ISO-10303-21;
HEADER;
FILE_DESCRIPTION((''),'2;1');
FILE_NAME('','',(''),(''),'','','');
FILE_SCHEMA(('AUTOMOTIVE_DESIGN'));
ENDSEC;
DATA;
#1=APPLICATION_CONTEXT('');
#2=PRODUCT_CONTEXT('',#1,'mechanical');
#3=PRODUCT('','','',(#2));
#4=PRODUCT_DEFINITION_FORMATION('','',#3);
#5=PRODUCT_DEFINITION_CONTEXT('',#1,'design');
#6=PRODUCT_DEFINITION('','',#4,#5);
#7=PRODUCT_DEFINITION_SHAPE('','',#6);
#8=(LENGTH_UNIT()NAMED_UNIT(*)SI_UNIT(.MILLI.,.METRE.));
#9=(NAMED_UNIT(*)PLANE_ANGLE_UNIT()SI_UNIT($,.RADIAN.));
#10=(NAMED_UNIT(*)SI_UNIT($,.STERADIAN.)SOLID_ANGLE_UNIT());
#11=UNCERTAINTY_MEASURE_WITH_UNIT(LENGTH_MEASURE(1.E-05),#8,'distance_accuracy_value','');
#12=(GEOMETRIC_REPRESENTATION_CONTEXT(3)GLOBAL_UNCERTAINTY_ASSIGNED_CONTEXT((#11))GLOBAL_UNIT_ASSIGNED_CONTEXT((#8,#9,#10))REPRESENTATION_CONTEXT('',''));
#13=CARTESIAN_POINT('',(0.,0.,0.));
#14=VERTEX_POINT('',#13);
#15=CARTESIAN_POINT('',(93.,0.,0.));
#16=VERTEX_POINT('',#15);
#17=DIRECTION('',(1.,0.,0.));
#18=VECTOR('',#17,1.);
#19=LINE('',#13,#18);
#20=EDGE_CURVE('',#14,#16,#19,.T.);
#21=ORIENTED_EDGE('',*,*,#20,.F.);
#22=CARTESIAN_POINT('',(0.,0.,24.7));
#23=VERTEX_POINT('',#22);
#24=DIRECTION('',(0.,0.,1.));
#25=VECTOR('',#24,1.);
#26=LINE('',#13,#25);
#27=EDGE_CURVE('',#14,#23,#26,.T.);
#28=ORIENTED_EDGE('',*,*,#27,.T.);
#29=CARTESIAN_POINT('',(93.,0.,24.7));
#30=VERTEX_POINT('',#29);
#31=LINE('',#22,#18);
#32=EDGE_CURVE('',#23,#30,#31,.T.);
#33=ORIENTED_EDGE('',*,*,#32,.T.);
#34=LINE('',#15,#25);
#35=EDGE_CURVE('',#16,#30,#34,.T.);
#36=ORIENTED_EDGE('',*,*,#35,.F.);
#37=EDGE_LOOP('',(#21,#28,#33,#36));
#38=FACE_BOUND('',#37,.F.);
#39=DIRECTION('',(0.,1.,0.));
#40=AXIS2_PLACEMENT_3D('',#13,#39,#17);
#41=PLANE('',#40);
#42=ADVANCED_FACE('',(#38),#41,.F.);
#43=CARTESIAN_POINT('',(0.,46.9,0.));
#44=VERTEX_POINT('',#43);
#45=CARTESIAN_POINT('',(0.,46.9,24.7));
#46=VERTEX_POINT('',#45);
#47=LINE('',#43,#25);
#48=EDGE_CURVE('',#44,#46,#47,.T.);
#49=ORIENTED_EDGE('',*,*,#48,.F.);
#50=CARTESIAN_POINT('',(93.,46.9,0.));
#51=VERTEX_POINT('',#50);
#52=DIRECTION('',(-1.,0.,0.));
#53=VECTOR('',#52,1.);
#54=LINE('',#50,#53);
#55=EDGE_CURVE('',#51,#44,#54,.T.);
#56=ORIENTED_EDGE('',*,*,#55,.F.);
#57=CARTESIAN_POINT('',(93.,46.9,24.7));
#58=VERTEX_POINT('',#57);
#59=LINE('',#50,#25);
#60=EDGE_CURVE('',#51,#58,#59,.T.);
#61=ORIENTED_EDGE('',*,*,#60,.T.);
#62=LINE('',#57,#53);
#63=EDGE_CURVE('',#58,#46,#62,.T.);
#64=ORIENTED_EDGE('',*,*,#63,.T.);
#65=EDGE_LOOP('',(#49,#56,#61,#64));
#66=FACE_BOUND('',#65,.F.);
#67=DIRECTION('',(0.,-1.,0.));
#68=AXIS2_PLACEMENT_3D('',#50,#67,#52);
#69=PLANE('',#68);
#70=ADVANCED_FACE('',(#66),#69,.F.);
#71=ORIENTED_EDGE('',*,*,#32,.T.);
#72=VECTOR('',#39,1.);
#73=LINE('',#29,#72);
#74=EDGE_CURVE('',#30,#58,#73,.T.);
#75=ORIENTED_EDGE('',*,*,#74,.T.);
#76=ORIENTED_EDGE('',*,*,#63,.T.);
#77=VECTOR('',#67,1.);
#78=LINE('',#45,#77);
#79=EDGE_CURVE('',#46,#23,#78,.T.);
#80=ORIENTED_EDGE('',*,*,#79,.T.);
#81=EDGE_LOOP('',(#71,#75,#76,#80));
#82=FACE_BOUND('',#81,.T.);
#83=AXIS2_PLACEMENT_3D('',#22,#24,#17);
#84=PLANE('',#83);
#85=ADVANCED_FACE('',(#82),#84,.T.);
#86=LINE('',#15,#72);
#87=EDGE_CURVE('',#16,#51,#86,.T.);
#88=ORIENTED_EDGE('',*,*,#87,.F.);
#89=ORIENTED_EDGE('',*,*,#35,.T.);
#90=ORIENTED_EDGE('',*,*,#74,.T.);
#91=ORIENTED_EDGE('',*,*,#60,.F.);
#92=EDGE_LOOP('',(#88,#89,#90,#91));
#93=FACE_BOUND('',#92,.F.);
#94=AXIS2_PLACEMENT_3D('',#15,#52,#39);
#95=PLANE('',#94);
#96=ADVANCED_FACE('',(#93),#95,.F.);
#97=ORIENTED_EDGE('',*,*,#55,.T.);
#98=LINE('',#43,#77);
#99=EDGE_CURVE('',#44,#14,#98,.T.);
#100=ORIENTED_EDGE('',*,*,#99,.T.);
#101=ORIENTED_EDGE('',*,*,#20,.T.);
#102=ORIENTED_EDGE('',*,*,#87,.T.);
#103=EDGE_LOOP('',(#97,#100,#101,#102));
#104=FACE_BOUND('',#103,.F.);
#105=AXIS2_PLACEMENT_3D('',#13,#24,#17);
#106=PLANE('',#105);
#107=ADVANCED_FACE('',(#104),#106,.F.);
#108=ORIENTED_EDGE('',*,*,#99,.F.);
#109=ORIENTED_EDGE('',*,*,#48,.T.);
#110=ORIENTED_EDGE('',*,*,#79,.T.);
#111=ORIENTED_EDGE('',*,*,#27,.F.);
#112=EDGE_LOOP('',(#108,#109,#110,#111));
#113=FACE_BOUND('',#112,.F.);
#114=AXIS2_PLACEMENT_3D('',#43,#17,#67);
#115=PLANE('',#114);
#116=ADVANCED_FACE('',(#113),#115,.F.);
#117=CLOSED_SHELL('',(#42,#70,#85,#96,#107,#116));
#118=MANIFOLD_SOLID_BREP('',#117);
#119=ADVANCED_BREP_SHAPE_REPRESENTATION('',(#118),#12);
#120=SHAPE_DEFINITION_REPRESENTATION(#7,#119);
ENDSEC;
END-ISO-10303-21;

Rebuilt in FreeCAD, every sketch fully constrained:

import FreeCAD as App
import Part
import Sketcher

doc = App.newDocument("Part")
body = doc.addObject("PartDesign::Body", "Body")

# Sketch on XY plane
sketch1 = doc.addObject("Sketcher::SketchObject", "Sketch")
body.addObject(sketch1)
sketch1.AttachmentSupport = (doc.XY_Plane, [""])
sketch1.MapMode = "FlatFace"
sketch1.addGeometry(Part.LineSegment(App.Vector(0, 46.9, 0), App.Vector(0, 0, 0)), False)
sketch1.addGeometry(Part.LineSegment(App.Vector(0, 0, 0), App.Vector(93, 0, 0)), False)
sketch1.addGeometry(Part.LineSegment(App.Vector(93, 0, 0), App.Vector(93, 46.9, 0)), False)
sketch1.addGeometry(Part.LineSegment(App.Vector(93, 46.9, 0), App.Vector(0, 46.9, 0)), False)
sketch1.addConstraint(Sketcher.Constraint("Coincident", 0, 2, 1, 1))
sketch1.addConstraint(Sketcher.Constraint("Coincident", 1, 2, 2, 1))
sketch1.addConstraint(Sketcher.Constraint("Coincident", 2, 2, 3, 1))
sketch1.addConstraint(Sketcher.Constraint("Coincident", 3, 2, 0, 1))
sketch1.addConstraint(Sketcher.Constraint("Vertical", 0))
sketch1.addConstraint(Sketcher.Constraint("Horizontal", 1))
sketch1.addConstraint(Sketcher.Constraint("Vertical", 2))
sketch1.addConstraint(Sketcher.Constraint("Horizontal", 3))
sketch1.addConstraint(Sketcher.Constraint("Coincident", 0, 2, -1, 1))
sketch1.addConstraint(Sketcher.Constraint("DistanceX", 1, 1, 1, 2, 93.0))
sketch1.addConstraint(Sketcher.Constraint("DistanceY", 0, 2, 0, 1, 46.9))
pad1 = doc.addObject("PartDesign::Pad", "Pad")
body.addObject(pad1)
pad1.Profile = sketch1
pad1.Length = 24.7

doc.recompute()
